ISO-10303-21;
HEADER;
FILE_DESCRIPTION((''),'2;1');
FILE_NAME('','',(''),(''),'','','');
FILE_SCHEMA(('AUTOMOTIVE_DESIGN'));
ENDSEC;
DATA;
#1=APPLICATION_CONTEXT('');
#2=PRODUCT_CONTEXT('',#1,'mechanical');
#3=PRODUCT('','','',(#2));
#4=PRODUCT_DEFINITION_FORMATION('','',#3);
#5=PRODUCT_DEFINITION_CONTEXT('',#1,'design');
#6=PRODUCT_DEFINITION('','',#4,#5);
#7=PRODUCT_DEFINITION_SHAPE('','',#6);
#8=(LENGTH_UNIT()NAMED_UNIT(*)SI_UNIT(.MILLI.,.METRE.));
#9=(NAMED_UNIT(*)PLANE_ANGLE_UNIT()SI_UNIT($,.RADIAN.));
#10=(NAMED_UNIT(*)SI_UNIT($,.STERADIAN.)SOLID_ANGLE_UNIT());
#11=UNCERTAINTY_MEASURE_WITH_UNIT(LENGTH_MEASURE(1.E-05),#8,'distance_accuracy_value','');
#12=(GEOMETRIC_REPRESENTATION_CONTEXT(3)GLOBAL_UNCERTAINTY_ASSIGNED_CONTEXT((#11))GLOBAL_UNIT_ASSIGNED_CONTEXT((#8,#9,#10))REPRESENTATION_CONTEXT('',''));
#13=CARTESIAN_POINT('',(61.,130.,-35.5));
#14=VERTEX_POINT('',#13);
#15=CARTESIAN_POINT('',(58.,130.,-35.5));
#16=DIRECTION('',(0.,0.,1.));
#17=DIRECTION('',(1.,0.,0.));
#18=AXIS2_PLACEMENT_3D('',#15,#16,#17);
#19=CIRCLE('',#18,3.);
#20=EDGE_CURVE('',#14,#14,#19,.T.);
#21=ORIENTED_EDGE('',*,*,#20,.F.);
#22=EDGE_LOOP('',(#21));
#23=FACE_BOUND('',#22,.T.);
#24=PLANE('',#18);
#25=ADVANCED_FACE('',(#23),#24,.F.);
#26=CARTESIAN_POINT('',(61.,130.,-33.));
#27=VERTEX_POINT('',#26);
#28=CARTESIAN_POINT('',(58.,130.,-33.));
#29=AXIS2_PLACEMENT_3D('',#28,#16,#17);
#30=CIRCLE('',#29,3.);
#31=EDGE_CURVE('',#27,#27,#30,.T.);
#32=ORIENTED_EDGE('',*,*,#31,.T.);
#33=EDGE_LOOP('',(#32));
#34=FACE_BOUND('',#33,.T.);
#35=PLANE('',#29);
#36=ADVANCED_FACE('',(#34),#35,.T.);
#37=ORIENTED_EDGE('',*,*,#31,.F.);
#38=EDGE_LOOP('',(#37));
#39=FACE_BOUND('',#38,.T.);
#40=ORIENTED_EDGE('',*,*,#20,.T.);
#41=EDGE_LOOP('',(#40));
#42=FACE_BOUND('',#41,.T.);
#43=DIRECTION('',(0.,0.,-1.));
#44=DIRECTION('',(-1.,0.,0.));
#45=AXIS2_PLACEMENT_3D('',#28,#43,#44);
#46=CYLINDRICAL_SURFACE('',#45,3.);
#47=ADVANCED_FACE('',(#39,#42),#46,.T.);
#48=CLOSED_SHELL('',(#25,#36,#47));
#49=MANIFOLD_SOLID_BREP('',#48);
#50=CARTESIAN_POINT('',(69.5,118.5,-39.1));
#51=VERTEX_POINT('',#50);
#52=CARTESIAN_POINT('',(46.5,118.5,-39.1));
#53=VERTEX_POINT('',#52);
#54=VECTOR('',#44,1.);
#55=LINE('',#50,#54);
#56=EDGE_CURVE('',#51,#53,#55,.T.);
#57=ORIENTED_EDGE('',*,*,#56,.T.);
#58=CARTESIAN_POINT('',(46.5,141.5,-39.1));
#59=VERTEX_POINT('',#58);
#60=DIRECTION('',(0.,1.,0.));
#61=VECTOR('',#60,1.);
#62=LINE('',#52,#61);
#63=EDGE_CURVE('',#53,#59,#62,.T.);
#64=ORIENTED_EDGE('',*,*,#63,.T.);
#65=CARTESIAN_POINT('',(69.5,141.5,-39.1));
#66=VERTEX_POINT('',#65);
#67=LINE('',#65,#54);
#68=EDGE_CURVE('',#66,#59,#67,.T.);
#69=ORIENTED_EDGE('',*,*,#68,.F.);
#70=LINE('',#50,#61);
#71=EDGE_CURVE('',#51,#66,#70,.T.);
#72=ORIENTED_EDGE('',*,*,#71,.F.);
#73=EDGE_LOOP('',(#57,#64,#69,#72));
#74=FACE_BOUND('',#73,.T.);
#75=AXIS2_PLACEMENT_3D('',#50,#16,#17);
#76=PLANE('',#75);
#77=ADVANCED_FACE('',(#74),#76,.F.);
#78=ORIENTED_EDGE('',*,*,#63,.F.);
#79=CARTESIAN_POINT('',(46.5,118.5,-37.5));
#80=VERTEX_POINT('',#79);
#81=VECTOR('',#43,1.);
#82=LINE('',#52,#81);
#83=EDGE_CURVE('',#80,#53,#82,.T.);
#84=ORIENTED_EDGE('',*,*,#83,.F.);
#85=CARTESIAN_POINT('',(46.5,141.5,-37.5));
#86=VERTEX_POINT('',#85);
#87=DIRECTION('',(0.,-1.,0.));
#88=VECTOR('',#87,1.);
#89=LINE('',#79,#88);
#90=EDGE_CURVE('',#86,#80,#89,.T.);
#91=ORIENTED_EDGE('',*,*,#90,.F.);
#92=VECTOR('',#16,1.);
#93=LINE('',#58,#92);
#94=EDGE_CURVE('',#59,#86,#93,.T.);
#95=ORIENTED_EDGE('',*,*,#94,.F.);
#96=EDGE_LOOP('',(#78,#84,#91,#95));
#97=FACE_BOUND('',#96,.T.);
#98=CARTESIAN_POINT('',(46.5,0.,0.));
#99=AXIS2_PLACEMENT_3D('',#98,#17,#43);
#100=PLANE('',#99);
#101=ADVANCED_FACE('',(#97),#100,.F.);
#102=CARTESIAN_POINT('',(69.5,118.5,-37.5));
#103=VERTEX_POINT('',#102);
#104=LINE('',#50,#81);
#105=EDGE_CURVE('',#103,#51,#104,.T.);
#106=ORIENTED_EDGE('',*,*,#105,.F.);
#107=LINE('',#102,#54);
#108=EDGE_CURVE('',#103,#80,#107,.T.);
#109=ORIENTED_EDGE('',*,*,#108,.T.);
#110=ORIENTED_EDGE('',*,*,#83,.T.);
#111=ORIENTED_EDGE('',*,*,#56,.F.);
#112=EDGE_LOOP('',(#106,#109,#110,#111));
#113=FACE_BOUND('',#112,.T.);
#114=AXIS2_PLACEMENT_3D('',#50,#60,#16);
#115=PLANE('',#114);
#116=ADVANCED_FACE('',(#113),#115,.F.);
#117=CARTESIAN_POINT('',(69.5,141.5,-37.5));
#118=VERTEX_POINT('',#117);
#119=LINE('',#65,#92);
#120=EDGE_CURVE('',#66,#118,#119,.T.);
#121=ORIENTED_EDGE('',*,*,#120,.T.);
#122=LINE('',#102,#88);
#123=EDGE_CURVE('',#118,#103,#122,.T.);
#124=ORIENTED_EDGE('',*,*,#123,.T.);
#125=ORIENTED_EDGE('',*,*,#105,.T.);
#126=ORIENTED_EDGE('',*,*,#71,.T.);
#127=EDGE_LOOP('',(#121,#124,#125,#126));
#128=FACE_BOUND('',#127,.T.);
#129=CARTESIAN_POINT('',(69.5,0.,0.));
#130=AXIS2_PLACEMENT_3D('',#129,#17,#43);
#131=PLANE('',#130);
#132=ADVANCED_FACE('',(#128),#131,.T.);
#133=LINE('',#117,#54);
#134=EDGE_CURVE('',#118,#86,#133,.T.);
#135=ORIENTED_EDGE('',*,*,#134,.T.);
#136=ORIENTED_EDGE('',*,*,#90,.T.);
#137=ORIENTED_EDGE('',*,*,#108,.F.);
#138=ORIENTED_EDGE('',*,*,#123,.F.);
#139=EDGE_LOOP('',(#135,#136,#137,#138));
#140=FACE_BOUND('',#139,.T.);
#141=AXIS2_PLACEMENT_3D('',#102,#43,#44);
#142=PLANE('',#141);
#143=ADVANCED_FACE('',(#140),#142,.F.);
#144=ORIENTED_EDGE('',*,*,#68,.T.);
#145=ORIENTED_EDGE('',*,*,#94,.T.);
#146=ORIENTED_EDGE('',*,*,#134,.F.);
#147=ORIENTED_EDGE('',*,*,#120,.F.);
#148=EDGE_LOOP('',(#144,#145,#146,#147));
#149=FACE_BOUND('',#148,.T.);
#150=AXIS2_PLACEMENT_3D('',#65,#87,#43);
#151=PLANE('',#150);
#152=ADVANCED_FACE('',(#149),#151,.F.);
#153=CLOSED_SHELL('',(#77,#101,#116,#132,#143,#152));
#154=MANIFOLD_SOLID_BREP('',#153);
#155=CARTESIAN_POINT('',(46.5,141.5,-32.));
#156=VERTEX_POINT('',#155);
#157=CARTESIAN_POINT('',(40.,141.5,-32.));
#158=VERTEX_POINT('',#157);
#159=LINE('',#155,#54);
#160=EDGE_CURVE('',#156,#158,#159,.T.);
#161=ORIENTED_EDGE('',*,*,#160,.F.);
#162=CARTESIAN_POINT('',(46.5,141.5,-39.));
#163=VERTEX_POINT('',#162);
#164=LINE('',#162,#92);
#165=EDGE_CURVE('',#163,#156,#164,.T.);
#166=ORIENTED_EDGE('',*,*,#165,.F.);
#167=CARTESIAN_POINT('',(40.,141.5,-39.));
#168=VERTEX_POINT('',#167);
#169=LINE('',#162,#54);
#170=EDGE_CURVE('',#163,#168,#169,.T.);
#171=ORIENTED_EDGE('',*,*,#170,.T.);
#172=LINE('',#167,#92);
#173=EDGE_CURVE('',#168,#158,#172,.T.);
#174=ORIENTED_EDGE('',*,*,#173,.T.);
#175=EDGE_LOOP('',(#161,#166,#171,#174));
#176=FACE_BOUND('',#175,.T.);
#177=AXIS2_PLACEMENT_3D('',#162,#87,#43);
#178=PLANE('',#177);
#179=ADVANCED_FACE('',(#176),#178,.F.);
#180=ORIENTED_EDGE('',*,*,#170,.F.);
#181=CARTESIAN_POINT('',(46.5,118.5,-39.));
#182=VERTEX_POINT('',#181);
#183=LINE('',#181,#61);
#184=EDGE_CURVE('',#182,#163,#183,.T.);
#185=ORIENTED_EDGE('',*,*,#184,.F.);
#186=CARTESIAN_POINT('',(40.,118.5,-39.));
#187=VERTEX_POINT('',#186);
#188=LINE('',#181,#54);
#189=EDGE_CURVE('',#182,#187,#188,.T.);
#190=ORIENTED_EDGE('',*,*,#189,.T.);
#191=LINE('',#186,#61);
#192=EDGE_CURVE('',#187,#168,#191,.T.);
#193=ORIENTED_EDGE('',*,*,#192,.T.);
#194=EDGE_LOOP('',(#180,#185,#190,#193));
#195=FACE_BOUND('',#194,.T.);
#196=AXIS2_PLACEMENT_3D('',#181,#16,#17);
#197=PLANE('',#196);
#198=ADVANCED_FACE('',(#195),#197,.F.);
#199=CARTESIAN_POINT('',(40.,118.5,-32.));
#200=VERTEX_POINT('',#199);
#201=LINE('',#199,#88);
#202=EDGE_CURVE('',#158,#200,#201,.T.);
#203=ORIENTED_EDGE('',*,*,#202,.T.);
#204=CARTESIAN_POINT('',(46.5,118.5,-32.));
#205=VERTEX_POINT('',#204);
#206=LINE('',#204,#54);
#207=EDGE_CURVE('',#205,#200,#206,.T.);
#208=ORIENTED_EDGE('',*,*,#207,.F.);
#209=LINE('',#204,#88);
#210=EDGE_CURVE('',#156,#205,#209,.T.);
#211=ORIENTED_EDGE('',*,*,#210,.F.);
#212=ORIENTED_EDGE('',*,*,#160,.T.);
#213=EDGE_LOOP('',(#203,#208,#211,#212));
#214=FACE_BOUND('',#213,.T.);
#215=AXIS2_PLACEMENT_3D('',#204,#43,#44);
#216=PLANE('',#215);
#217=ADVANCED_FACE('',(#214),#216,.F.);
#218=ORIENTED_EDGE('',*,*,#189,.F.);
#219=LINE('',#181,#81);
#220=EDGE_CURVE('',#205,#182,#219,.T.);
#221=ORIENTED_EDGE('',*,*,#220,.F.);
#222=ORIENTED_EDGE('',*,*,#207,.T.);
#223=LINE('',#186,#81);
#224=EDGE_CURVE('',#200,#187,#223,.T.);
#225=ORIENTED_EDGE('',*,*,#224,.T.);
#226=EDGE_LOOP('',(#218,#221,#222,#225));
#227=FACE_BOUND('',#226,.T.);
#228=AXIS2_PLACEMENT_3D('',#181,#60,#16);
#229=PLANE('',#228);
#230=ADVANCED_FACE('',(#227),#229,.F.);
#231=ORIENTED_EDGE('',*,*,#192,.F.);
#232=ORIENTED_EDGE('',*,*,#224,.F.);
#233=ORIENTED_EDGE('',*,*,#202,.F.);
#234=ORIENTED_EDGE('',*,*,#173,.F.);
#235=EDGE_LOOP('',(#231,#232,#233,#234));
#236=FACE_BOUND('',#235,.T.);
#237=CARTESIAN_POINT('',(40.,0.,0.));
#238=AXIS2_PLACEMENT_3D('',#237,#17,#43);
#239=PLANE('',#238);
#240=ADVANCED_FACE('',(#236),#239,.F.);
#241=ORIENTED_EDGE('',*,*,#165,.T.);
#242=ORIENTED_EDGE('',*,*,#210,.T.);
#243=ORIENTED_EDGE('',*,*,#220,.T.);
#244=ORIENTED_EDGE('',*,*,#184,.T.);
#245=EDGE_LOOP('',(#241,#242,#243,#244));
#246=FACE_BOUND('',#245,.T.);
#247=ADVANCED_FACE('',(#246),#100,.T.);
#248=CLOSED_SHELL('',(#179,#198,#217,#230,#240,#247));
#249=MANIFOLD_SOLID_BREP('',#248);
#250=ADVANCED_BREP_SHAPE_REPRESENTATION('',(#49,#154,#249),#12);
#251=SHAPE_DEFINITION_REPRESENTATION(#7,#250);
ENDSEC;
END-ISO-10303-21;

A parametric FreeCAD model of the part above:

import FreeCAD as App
import Part
import Sketcher
Q = App.Units.Quantity

doc = App.newDocument("Part")
body = doc.addObject("PartDesign::Body", "Body")

sketch1 = body.newObject("Sketcher::SketchObject", "Sketch")
sketch1.AttachmentSupport = (doc.getObject("XY_Plane"), [""])
sketch1.MapMode = "FlatFace"
sketch1.AttachmentOffset = App.Placement(App.Vector(0, 0, -35.5), App.Rotation())
sketch1.addGeometry(Part.Circle(App.Vector(58, 130, 0), App.Vector(0, 0, 1), 3), False)
sketch1.addConstraint([
    Sketcher.Constraint("Diameter", 0, Q("6 mm")),
    Sketcher.Constraint("DistanceX", -1, 1, 0, 3, Q("58 mm")),
    Sketcher.Constraint("DistanceY", -1, 1, 0, 3, Q("130 mm")),
])
pad1 = body.newObject("PartDesign::Pad", "Pad")
pad1.Profile = sketch1
pad1.Length = 2.5
body2 = doc.addObject("PartDesign::Body", "Body001")

sketch2 = body2.newObject("Sketcher::SketchObject", "Sketch001")
sketch2.AttachmentSupport = (doc.getObject("YZ_Plane001"), [""])
sketch2.MapMode = "FlatFace"
sketch2.AttachmentOffset = App.Placement(App.Vector(0, 0, 46.5), App.Rotation())
sketch2.addGeometry([
    Part.LineSegment(App.Vector(141.5, -37.5, 0), App.Vector(118.5, -37.5, 0)),
    Part.LineSegment(App.Vector(118.5, -37.5, 0), App.Vector(118.5, -39.1, 0)),
    Part.LineSegment(App.Vector(118.5, -39.1, 0), App.Vector(141.5, -39.1, 0)),
    Part.LineSegment(App.Vector(141.5, -39.1, 0), App.Vector(141.5, -37.5, 0)),
], False)
sketch2.addConstraint([
    Sketcher.Constraint("Coincident", 0, 2, 1, 1),
    Sketcher.Constraint("Coincident", 1, 2, 2, 1),
    Sketcher.Constraint("Coincident", 2, 2, 3, 1),
    Sketcher.Constraint("Coincident", 3, 2, 0, 1),
    Sketcher.Constraint("Horizontal", 0),
    Sketcher.Constraint("Vertical", 1),
    Sketcher.Constraint("Horizontal", 2),
    Sketcher.Constraint("Vertical", 3),
    Sketcher.Constraint("DistanceX", 0, 2, 0, 1, Q("23 mm")),
    Sketcher.Constraint("DistanceY", 1, 2, 1, 1, Q("1.6 mm")),
    Sketcher.Constraint("DistanceX", -1, 1, 0, 2, Q("118.5 mm")),
    Sketcher.Constraint("DistanceY", 0, 2, -1, 1, Q("37.5 mm")),
])
pad2 = body2.newObject("PartDesign::Pad", "Pad001")
pad2.Profile = sketch2
pad2.Length = 23
body3 = doc.addObject("PartDesign::Body", "Body002")

sketch3 = body3.newObject("Sketcher::SketchObject", "Sketch002")
sketch3.AttachmentSupport = (doc.getObject("YZ_Plane002"), [""])
sketch3.MapMode = "FlatFace"
sketch3.AttachmentOffset = App.Placement(App.Vector(0, 0, 40), App.Rotation())
sketch3.addGeometry([
    Part.LineSegment(App.Vector(141.5, -32, 0), App.Vector(118.5, -32, 0)),
    Part.LineSegment(App.Vector(118.5, -32, 0), App.Vector(118.5, -39, 0)),
    Part.LineSegment(App.Vector(118.5, -39, 0), App.Vector(141.5, -39, 0)),
    Part.LineSegment(App.Vector(141.5, -39, 0), App.Vector(141.5, -32, 0)),
], False)
sketch3.addConstraint([
    Sketcher.Constraint("Coincident", 0, 2, 1, 1),
    Sketcher.Constraint("Coincident", 1, 2, 2, 1),
    Sketcher.Constraint("Coincident", 2, 2, 3, 1),
    Sketcher.Constraint("Coincident", 3, 2, 0, 1),
    Sketcher.Constraint("Horizontal", 0),
    Sketcher.Constraint("Vertical", 1),
    Sketcher.Constraint("Horizontal", 2),
    Sketcher.Constraint("Vertical", 3),
    Sketcher.Constraint("DistanceX", 0, 2, 0, 1, Q("23 mm")),
    Sketcher.Constraint("DistanceY", 1, 2, 1, 1, Q("7 mm")),
    Sketcher.Constraint("DistanceY", 0, 2, -1, 1, Q("32 mm")),
    Sketcher.Constraint("DistanceX", -1, 1, 0, 2, Q("118.5 mm")),
])
pad3 = body3.newObject("PartDesign::Pad", "Pad002")
pad3.Profile = sketch3
pad3.Length = 6.5

doc.recompute()
